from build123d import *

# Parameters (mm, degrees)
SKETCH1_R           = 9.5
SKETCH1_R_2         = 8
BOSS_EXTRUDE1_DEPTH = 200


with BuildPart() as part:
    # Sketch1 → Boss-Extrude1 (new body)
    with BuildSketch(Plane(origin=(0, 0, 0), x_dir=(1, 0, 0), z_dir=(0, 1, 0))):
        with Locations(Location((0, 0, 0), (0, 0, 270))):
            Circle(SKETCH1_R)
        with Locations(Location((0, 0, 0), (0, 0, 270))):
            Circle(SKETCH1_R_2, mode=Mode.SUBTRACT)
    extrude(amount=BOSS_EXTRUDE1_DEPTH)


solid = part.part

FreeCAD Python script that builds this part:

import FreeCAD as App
import Part
import Sketcher

V = App.Vector
Q = App.Units.Quantity

doc = App.newDocument("Part")
body = doc.addObject("PartDesign::Body", "Body")

sketch1 = body.newObject("Sketcher::SketchObject", "Sketch")
sketch1.AttachmentSupport = (doc.getObject("XZ_Plane"), [""])
sketch1.MapMode = "FlatFace"
sketch1.addGeometry(Part.Circle(V(0, 0, 0), V(0, 0, 1), 10), False)
sketch1.addGeometry(Part.Circle(V(0, 0, 0), V(0, 0, 1), 8), False)
sketch1.addConstraint(Sketcher.Constraint("Coincident", 0, 3, -1, 1))
sketch1.addConstraint(Sketcher.Constraint("Coincident", 1, 3, -1, 1))
sketch1.addConstraint(Sketcher.Constraint("Diameter", 0, Q("19 mm")))
sketch1.addConstraint(Sketcher.Constraint("Diameter", 1, Q("16 mm")))
pad1 = body.newObject("PartDesign::Pad", "Pad")
pad1.Profile = sketch1
pad1.Length = 200
pad1.Reversed = True

doc.recompute()
